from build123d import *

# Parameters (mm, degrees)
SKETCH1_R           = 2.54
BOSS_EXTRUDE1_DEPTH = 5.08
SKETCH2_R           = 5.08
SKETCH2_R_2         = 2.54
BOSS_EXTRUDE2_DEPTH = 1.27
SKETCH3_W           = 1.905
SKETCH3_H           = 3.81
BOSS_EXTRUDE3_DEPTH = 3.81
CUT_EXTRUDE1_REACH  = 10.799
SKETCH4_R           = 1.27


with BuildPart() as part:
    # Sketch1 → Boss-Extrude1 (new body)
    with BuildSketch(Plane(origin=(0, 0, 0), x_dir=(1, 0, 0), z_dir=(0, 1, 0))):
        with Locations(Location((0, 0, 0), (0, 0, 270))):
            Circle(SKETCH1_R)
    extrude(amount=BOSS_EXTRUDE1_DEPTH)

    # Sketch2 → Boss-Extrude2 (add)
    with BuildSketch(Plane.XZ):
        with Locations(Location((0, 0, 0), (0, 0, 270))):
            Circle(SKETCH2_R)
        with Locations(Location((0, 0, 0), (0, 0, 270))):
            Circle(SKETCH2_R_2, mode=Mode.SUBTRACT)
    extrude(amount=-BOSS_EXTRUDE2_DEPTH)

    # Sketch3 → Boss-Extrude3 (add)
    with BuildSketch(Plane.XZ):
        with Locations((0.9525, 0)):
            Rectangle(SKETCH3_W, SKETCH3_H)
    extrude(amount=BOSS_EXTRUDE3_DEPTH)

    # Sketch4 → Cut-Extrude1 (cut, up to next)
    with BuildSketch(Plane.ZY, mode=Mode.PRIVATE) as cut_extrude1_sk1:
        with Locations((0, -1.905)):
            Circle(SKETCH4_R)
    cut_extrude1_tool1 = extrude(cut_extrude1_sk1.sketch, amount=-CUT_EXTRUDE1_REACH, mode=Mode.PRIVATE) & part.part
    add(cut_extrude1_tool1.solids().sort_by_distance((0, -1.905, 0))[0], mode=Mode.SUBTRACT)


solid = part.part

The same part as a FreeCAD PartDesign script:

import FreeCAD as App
import Part
import Sketcher

V = App.Vector
Q = App.Units.Quantity


def add_polygon(sketch, points):
    """Adds a closed chain of lines whose ends are joined by coincident constraints."""
    first, n = sketch.GeometryCount, len(points)
    for a, b in zip(points, points[1:] + points[:1]):
        sketch.addGeometry(Part.LineSegment(App.Vector(*a, 0), App.Vector(*b, 0)), False)
    for i in range(n):
        sketch.addConstraint(Sketcher.Constraint("Coincident", first + i, 2, first + (i + 1) % n, 1))

doc = App.newDocument("Part")
body = doc.addObject("PartDesign::Body", "Body")

sketch1 = body.newObject("Sketcher::SketchObject", "Sketch")
sketch1.AttachmentSupport = (doc.getObject("XZ_Plane"), [""])
sketch1.MapMode = "FlatFace"
sketch1.addGeometry(Part.Circle(V(0, 0, 0), V(0, 0, 1), 2.5), False)
sketch1.addConstraint(Sketcher.Constraint("Coincident", 0, 3, -1, 1))
sketch1.addConstraint(Sketcher.Constraint("Diameter", 0, Q("0.2 in")))
pad1 = body.newObject("PartDesign::Pad", "Pad")
pad1.Profile = sketch1
pad1.Length = Q("0.2 in")
pad1.Reversed = True

sketch2 = body.newObject("Sketcher::SketchObject", "Sketch001")
sketch2.AttachmentSupport = (doc.getObject("XZ_Plane"), [""])
sketch2.MapMode = "FlatFace"
sketch2.addGeometry(Part.Circle(V(0, 0, 0), V(0, 0, 1), 5.1), False)
sketch2.addGeometry(Part.Circle(V(0, 0, 0), V(0, 0, 1), 2.5), False)
sketch2.addConstraint(Sketcher.Constraint("Coincident", 0, 3, -1, 1))
sketch2.addConstraint(Sketcher.Constraint("Coincident", 1, 3, -1, 1))
sketch2.addConstraint(Sketcher.Constraint("Diameter", 0, Q("0.4 in")))
sketch2.addConstraint(Sketcher.Constraint("Diameter", 1, Q("0.2 in")))
pad2 = body.newObject("PartDesign::Pad", "Pad001")
pad2.Profile = sketch2
pad2.Length = Q("0.05 in")
pad2.Reversed = True

sketch3 = body.newObject("Sketcher::SketchObject", "Sketch002")
sketch3.AttachmentSupport = (doc.getObject("XZ_Plane"), [""])
sketch3.MapMode = "FlatFace"
add_polygon(sketch3, [(0, 1.9), (0, -1.9), (1.9, -1.9), (1.9, 1.9)])
sketch3.addConstraint(Sketcher.Constraint("Vertical", 0))
sketch3.addConstraint(Sketcher.Constraint("Horizontal", 1))
sketch3.addConstraint(Sketcher.Constraint("Vertical", 2))
sketch3.addConstraint(Sketcher.Constraint("Horizontal", 3))
sketch3.addConstraint(Sketcher.Constraint("Symmetric", 0, 2, 3, 2, -1, 1))
sketch3.addConstraint(Sketcher.Constraint("DistanceY", 0, 2, 0, 1, Q("0.15 in")))
sketch3.addConstraint(Sketcher.Constraint("DistanceX", 1, 1, 1, 2, Q("0.075 in")))
pad3 = body.newObject("PartDesign::Pad", "Pad002")
pad3.Profile = sketch3
pad3.Length = Q("0.15 in")

sketch4 = body.newObject("Sketcher::SketchObject", "Sketch003")
sketch4.AttachmentSupport = (doc.getObject("YZ_Plane"), [""])
sketch4.MapMode = "FlatFace"
sketch4.addGeometry(Part.Circle(V(-1.9, 0, 0), V(0, 0, 1), 1.3), False)
sketch4.addConstraint(Sketcher.Constraint("PointOnObject", 0, 3, -1))
sketch4.addConstraint(Sketcher.Constraint("Diameter", 0, Q("0.1 in")))
sketch4.addConstraint(Sketcher.Constraint("DistanceX", 0, 3, -1, 1, Q("0.075 in")))
pocket1 = body.newObject("PartDesign::Pocket", "Pocket")
pocket1.Profile = sketch4
pocket1.Type = "UpToFirst"
pocket1.Reversed = True

doc.recompute()
